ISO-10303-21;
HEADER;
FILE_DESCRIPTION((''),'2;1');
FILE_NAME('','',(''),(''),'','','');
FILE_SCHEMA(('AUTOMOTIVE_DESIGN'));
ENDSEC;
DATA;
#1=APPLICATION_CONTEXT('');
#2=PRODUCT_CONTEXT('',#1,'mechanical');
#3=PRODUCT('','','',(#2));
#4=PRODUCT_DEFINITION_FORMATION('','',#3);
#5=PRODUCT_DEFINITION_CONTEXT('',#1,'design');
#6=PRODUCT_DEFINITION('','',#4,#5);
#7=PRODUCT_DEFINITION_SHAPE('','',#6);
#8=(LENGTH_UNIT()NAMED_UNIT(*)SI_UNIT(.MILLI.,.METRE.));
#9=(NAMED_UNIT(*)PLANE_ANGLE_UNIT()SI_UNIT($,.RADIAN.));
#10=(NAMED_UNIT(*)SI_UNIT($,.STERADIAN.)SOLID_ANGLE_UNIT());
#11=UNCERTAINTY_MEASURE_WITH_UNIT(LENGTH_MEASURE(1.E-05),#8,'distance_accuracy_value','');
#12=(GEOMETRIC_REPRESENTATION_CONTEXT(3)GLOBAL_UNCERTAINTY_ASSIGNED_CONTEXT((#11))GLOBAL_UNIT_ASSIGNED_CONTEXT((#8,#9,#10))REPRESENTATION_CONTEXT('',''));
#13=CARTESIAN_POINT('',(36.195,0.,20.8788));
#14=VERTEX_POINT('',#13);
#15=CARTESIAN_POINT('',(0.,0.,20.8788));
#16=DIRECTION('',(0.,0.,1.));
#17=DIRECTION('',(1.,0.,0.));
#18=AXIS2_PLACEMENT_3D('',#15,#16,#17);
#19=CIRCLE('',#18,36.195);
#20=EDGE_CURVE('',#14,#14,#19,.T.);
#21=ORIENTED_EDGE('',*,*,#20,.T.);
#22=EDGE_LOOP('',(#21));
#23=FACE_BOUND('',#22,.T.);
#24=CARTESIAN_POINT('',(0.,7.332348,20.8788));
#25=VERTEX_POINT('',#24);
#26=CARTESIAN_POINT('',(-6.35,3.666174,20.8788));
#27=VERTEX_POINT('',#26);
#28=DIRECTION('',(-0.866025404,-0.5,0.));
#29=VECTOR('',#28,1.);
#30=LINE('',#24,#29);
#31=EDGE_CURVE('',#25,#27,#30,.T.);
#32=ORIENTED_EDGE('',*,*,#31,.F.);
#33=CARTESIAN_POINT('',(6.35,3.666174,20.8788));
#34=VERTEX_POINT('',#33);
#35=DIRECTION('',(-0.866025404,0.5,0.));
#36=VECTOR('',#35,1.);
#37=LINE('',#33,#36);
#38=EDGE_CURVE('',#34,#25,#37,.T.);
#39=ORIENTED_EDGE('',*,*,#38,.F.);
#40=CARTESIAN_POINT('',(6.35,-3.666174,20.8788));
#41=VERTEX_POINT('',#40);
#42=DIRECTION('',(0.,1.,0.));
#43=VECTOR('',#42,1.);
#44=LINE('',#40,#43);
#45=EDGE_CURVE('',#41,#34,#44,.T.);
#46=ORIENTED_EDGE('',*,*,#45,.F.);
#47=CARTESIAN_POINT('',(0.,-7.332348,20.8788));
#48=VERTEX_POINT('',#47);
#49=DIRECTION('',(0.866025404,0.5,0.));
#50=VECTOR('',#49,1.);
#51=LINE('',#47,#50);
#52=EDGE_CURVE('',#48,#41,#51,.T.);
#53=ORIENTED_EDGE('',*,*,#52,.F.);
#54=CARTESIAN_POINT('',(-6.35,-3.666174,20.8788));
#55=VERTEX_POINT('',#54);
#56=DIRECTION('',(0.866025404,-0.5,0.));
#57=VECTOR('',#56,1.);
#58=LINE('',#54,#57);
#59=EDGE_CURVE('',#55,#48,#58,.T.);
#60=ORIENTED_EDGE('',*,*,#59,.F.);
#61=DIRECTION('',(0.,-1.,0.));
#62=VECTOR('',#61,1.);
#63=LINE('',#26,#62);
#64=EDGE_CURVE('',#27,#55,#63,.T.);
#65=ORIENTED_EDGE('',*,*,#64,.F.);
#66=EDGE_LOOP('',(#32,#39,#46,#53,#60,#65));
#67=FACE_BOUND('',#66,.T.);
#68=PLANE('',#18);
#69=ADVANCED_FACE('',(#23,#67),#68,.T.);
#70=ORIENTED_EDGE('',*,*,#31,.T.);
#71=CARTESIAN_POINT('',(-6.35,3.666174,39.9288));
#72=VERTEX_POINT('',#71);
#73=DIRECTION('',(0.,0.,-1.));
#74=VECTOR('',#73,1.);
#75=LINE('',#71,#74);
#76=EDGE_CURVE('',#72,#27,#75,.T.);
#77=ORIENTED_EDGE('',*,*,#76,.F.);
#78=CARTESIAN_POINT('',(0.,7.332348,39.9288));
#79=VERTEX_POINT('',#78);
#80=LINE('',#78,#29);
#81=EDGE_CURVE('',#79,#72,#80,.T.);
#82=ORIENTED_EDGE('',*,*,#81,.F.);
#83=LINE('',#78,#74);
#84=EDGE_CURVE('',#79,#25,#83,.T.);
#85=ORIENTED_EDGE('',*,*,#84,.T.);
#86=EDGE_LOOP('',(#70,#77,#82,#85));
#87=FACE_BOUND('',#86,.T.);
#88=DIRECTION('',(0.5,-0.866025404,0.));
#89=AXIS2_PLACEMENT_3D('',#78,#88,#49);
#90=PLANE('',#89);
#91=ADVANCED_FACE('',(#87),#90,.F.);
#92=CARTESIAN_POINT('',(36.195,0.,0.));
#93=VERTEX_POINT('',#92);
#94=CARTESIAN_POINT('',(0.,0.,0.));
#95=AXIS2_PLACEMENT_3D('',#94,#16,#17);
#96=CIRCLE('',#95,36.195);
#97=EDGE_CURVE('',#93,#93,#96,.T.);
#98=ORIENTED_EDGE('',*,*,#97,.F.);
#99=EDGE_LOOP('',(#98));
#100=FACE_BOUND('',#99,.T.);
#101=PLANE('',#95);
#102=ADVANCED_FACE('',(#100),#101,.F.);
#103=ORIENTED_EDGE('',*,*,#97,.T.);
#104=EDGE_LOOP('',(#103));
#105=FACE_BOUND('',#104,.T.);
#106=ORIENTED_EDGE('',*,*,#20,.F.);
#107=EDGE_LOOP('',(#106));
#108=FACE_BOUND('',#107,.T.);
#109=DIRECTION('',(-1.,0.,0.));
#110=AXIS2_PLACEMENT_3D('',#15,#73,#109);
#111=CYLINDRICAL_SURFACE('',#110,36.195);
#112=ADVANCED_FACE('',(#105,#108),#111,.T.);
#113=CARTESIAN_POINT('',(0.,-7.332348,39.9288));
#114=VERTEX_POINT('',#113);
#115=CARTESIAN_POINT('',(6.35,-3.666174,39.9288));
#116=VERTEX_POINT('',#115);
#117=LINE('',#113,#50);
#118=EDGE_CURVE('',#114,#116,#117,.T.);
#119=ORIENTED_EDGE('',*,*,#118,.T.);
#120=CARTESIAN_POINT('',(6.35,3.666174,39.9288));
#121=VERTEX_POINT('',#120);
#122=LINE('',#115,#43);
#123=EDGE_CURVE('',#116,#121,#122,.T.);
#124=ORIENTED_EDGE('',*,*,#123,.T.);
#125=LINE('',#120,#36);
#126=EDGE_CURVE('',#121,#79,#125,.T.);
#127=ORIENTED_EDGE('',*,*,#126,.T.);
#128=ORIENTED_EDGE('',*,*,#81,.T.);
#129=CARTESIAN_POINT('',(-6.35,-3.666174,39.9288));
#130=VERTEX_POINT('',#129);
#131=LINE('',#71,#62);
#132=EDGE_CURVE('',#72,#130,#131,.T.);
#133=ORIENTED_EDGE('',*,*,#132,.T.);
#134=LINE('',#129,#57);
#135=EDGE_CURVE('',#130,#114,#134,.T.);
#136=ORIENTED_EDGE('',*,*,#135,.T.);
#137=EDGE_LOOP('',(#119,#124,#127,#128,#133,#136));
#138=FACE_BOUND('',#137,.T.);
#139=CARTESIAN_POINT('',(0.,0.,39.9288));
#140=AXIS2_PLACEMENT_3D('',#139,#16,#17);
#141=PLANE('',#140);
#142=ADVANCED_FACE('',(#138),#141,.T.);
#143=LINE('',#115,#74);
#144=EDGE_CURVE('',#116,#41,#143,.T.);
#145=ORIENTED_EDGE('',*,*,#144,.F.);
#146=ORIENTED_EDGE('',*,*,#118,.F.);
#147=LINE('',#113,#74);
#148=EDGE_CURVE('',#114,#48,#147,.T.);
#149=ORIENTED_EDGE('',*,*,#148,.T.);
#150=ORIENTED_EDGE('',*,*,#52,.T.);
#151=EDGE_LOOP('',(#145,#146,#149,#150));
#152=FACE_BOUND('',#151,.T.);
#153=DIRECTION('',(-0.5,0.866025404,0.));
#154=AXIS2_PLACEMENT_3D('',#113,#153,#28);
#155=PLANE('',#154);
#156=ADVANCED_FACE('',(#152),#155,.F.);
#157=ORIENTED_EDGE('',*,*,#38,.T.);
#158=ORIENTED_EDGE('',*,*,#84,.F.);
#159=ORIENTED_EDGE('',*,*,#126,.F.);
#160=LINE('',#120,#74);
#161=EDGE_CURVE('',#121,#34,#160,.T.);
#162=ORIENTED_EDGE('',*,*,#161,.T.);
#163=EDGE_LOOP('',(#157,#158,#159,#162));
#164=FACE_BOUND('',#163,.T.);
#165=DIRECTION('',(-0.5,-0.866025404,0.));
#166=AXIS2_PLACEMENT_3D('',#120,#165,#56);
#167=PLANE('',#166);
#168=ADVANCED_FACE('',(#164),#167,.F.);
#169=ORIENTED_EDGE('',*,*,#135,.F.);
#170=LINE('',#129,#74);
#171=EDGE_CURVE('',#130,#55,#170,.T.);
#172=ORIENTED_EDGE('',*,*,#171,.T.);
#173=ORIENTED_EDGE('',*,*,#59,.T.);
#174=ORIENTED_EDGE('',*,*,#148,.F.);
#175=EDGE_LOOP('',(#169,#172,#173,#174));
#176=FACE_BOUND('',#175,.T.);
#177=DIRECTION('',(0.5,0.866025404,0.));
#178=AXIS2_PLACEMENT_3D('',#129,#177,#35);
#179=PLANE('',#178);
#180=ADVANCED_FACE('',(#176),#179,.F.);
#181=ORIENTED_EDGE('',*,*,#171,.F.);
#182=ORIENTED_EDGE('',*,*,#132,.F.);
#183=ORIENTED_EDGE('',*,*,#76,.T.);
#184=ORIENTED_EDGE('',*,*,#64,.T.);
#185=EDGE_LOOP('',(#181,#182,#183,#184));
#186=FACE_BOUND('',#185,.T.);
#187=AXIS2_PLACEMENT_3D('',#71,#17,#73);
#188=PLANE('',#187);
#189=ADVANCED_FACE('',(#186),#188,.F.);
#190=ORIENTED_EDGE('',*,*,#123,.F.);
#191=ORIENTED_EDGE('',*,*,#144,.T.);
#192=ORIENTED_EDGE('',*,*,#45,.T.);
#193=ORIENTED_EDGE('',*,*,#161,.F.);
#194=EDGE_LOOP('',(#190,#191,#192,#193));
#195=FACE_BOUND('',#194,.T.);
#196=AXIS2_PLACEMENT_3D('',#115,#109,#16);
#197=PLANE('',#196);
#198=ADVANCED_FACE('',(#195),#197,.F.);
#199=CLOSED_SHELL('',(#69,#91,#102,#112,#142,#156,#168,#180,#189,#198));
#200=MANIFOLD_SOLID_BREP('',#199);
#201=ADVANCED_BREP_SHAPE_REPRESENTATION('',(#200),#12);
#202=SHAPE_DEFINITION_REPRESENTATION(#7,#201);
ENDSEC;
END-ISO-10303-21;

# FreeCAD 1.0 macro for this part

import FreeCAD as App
import Part
import Sketcher
from FreeCAD import Vector
Q = App.Units.Quantity


def add_polygon(sketch, points):
    """Adds a closed chain of lines whose ends are joined by coincident constraints."""
    first, n = sketch.GeometryCount, len(points)
    for a, b in zip(points, points[1:] + points[:1]):
        sketch.addGeometry(Part.LineSegment(App.Vector(*a, 0), App.Vector(*b, 0)), False)
    for i in range(n):
        sketch.addConstraint(Sketcher.Constraint("Coincident", first + i, 2, first + (i + 1) % n, 1))

doc = App.newDocument("Part")
body = doc.addObject("PartDesign::Body", "Body")

# Sketch on XY plane
sketch1 = body.newObject("Sketcher::SketchObject", "Sketch")
sketch1.AttachmentSupport = (doc.getObject("XY_Plane"), [""])
sketch1.MapMode = "FlatFace"
sketch1.addGeometry(Part.Circle(Vector(0, 0, 0), Vector(0, 0, 1), 36.195), False)
sketch1.addConstraint([
    Sketcher.Constraint("Coincident", 0, 3, -1, 1),
    Sketcher.Constraint("Diameter", 0, Q("2.85 in")),
])
pad1 = body.newObject("PartDesign::Pad", "Pad")
pad1.Profile = sketch1
pad1.Length = Q("0.822 in")

# Sketch on XY plane
sketch2 = body.newObject("Sketcher::SketchObject", "Sketch001")
sketch2.AttachmentSupport = (doc.getObject("XY_Plane"), [""])
sketch2.MapMode = "FlatFace"
sketch2.AttachmentOffset = App.Placement(Vector(0, 0, 0.822 * 25.4), App.Rotation())
add_polygon(sketch2, [(6.35, -3.666174), (6.35, 3.666174), (0, 7.332348), (-6.35, 3.666174), (-6.35, -3.666174), (0, -7.332348)])  # lines 0-5
sketch2.addConstraint([
    Sketcher.Constraint("Vertical", 0),
    Sketcher.Constraint("Vertical", 3),
    Sketcher.Constraint("Symmetric", 0, 2, 3, 2, -1, 1),
    Sketcher.Constraint("Symmetric", 1, 2, 4, 2, -1, 1),
    Sketcher.Constraint("PointOnObject", 1, 2, -2),
    Sketcher.Constraint("Parallel", 2, 5),
    Sketcher.Constraint("Horizontal", 0, 2, 2, 2),
    Sketcher.Constraint("Angle", 1, Q("150 deg")),
    Sketcher.Constraint("DistanceX", 2, 2, 0, 2, Q("0.5 in")),
    Sketcher.Constraint("DistanceY", 0, 1, 0, 2, Q("7.332348 mm")),
])
pad2 = body.newObject("PartDesign::Pad", "Pad001")
pad2.Profile = sketch2
pad2.Length = Q("0.75 in")

doc.recompute()
